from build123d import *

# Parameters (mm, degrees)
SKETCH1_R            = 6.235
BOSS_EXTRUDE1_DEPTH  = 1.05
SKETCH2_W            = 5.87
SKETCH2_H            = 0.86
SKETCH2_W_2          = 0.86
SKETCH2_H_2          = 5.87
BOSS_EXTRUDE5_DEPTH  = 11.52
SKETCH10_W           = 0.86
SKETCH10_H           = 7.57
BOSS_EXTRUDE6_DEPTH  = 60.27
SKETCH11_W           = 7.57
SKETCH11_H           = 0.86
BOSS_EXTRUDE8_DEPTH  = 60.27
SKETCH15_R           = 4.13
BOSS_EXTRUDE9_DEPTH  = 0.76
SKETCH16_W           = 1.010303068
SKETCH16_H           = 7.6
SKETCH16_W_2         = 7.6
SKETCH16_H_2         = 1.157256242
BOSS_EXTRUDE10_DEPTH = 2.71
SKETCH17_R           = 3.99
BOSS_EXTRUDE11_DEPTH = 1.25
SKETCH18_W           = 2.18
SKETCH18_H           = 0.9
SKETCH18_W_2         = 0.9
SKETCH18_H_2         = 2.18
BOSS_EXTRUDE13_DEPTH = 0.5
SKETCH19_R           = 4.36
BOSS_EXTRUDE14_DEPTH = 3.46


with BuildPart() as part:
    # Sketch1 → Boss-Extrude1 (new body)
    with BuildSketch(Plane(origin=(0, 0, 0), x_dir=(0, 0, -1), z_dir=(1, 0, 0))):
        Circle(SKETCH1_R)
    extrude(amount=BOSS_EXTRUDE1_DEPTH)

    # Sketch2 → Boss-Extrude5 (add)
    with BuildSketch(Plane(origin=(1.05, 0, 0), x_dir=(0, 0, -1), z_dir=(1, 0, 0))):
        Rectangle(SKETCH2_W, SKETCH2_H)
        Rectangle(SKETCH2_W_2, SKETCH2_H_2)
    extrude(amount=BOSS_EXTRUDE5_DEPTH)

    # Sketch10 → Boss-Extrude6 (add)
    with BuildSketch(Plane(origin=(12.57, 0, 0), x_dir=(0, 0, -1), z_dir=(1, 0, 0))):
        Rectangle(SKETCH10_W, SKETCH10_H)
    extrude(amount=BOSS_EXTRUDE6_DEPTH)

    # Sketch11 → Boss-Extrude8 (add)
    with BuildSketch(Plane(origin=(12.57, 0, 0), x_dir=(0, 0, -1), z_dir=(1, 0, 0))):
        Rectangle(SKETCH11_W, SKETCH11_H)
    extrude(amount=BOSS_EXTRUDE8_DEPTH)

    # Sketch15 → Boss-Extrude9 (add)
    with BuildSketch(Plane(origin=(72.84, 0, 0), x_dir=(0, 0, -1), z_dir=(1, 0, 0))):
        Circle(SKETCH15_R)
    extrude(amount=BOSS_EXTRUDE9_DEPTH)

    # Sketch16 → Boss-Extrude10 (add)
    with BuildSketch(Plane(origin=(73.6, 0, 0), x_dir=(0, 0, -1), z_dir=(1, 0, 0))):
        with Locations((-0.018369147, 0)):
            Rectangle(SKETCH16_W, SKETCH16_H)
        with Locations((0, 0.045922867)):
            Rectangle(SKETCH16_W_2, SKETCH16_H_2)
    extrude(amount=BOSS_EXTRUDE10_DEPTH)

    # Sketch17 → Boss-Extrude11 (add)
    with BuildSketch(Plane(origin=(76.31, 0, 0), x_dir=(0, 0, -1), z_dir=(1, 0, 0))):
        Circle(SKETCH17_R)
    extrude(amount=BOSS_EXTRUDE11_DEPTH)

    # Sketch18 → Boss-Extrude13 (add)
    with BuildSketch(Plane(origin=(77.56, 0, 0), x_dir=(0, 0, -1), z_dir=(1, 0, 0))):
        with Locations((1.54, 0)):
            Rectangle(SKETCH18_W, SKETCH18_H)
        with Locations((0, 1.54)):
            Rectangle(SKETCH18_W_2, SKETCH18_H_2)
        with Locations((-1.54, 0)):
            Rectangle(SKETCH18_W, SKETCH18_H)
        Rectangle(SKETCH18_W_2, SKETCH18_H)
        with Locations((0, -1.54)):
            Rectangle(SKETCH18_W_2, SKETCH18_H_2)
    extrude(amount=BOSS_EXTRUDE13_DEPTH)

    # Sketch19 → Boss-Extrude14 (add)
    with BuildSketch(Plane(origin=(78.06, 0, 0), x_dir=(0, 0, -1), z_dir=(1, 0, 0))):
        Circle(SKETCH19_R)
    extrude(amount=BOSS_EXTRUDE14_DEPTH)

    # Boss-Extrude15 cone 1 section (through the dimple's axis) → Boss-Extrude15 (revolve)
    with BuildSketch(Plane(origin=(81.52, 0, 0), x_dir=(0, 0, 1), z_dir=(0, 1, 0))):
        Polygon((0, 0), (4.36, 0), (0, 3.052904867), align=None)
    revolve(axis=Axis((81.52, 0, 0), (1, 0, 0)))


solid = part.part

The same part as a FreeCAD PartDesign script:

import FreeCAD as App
import Part
import Sketcher

V = App.Vector
Q = App.Units.Quantity

doc = App.newDocument("Part")
body = doc.addObject("PartDesign::Body", "Body")

# Sketch on YZ plane
sketch1 = body.newObject("Sketcher::SketchObject", "Sketch")
sketch1.AttachmentSupport = (doc.getObject("YZ_Plane"), [""])
sketch1.MapMode = "FlatFace"
sketch1.addGeometry(Part.Circle(V(0, 0, 0), V(0, 0, 1), 6.235), False)
sketch1.addConstraint([
    Sketcher.Constraint("Coincident", 0, 3, -1, 1),
    Sketcher.Constraint("Diameter", 0, 12.47),
])
pad1 = body.newObject("PartDesign::Pad", "Pad")
pad1.Profile = sketch1
pad1.Length = 1.05

# Sketch on YZ plane
sketch2 = body.newObject("Sketcher::SketchObject", "Sketch001")
sketch2.AttachmentSupport = (doc.getObject("YZ_Plane"), [""])
sketch2.MapMode = "FlatFace"
sketch2.AttachmentOffset = App.Placement(V(0, 0, 1.05), App.Rotation())
sketch2.addGeometry([
    Part.LineSegment(V(0.43, 2.935, 0), V(-0.43, 2.935, 0)),  # 0
    Part.LineSegment(V(-0.43, 2.935, 0), V(-0.43, 0.43, 0)),  # 1
    Part.LineSegment(V(-0.43, 0.43, 0), V(-2.935, 0.43, 0)),  # 2
    Part.LineSegment(V(-2.935, 0.43, 0), V(-2.935, -0.43, 0)),  # 3
    Part.LineSegment(V(-2.935, -0.43, 0), V(-0.43, -0.43, 0)),  # 4
    Part.LineSegment(V(-0.43, -0.43, 0), V(-0.43, -2.935, 0)),  # 5
    Part.LineSegment(V(-0.43, -2.935, 0), V(0.43, -2.935, 0)),  # 6
    Part.LineSegment(V(0.43, -2.935, 0), V(0.43, -0.43, 0)),  # 7
    Part.LineSegment(V(0.43, -0.43, 0), V(2.935, -0.43, 0)),  # 8
    Part.LineSegment(V(2.935, -0.43, 0), V(2.935, 0.43, 0)),  # 9
    Part.LineSegment(V(2.935, 0.43, 0), V(0.43, 0.43, 0)),  # 10
    Part.LineSegment(V(0.43, 0.43, 0), V(0.43, 2.935, 0)),  # 11
], False)
sketch2.addConstraint([
    Sketcher.Constraint("Coincident", 0, 2, 1, 1),
    Sketcher.Constraint("Coincident", 1, 2, 2, 1),
    Sketcher.Constraint("Coincident", 2, 2, 3, 1),
    Sketcher.Constraint("Coincident", 3, 2, 4, 1),
    Sketcher.Constraint("Coincident", 4, 2, 5, 1),
    Sketcher.Constraint("Coincident", 5, 2, 6, 1),
    Sketcher.Constraint("Coincident", 6, 2, 7, 1),
    Sketcher.Constraint("Coincident", 7, 2, 8, 1),
    Sketcher.Constraint("Coincident", 8, 2, 9, 1),
    Sketcher.Constraint("Coincident", 9, 2, 10, 1),
    Sketcher.Constraint("Coincident", 10, 2, 11, 1),
    Sketcher.Constraint("Coincident", 11, 2, 0, 1),
    Sketcher.Constraint("Horizontal", 0),
    Sketcher.Constraint("Vertical", 1),
    Sketcher.Constraint("Horizontal", 2),
    Sketcher.Constraint("Vertical", 3),
    Sketcher.Constraint("Horizontal", 4),
    Sketcher.Constraint("Vertical", 5),
    Sketcher.Constraint("Horizontal", 6),
    Sketcher.Constraint("Vertical", 7),
    Sketcher.Constraint("Horizontal", 8),
    Sketcher.Constraint("Vertical", 9),
    Sketcher.Constraint("Horizontal", 10),
    Sketcher.Constraint("Vertical", 11),
    Sketcher.Constraint("Symmetric", 0, 2, 6, 2, -1, 1),
    Sketcher.Constraint("Symmetric", 2, 2, 8, 2, -1, 1),
    Sketcher.Constraint("Symmetric", 4, 2, 10, 2, -1, 1),
    Sketcher.Constraint("Symmetric", 4, 2, 7, 2, -2),
    Sketcher.Constraint("Equal", 10, 1),
    Sketcher.Constraint("Equal", 6, 3),
    Sketcher.Constraint("DistanceX", 0, 2, 0, 1, 0.86),
    Sketcher.Constraint("DistanceX", 2, 2, 2, 1, 2.505),
])
pad2 = body.newObject("PartDesign::Pad", "Pad001")
pad2.Profile = sketch2
pad2.Length = 11.52

# Sketch on YZ plane
sketch3 = body.newObject("Sketcher::SketchObject", "Sketch002")
sketch3.AttachmentSupport = (doc.getObject("YZ_Plane"), [""])
sketch3.MapMode = "FlatFace"
sketch3.AttachmentOffset = App.Placement(V(0, 0, 12.57), App.Rotation())
sketch3.addGeometry([
    Part.LineSegment(V(3.785, 0.43, 0), V(-3.785, 0.43, 0)),
    Part.LineSegment(V(-3.785, 0.43, 0), V(-3.785, -0.43, 0)),
    Part.LineSegment(V(-3.785, -0.43, 0), V(3.785, -0.43, 0)),
    Part.LineSegment(V(3.785, -0.43, 0), V(3.785, 0.43, 0)),
], False)
sketch3.addConstraint([
    Sketcher.Constraint("Coincident", 0, 2, 1, 1),
    Sketcher.Constraint("Coincident", 1, 2, 2, 1),
    Sketcher.Constraint("Coincident", 2, 2, 3, 1),
    Sketcher.Constraint("Coincident", 3, 2, 0, 1),
    Sketcher.Constraint("Horizontal", 0),
    Sketcher.Constraint("Vertical", 1),
    Sketcher.Constraint("Horizontal", 2),
    Sketcher.Constraint("Vertical", 3),
    Sketcher.Constraint("Symmetric", 0, 2, 2, 2, -1, 1),
    Sketcher.Constraint("DistanceX", 0, 2, 0, 1, 7.57),
    Sketcher.Constraint("DistanceY", 1, 2, 1, 1, 0.86),
])
pad3 = body.newObject("PartDesign::Pad", "Pad002")
pad3.Profile = sketch3
pad3.Length = 60.27

# Sketch on YZ plane
sketch4 = body.newObject("Sketcher::SketchObject", "Sketch003")
sketch4.AttachmentSupport = (doc.getObject("YZ_Plane"), [""])
sketch4.MapMode = "FlatFace"
sketch4.AttachmentOffset = App.Placement(V(0, 0, 12.57), App.Rotation())
sketch4.addGeometry([
    Part.LineSegment(V(0.43, 3.785, 0), V(-0.43, 3.785, 0)),
    Part.LineSegment(V(-0.43, 3.785, 0), V(-0.43, -3.785, 0)),
    Part.LineSegment(V(-0.43, -3.785, 0), V(0.43, -3.785, 0)),
    Part.LineSegment(V(0.43, -3.785, 0), V(0.43, 3.785, 0)),
], False)
sketch4.addConstraint([
    Sketcher.Constraint("Coincident", 0, 2, 1, 1),
    Sketcher.Constraint("Coincident", 1, 2, 2, 1),
    Sketcher.Constraint("Coincident", 2, 2, 3, 1),
    Sketcher.Constraint("Coincident", 3, 2, 0, 1),
    Sketcher.Constraint("Horizontal", 0),
    Sketcher.Constraint("Vertical", 1),
    Sketcher.Constraint("Horizontal", 2),
    Sketcher.Constraint("Vertical", 3),
    Sketcher.Constraint("Symmetric", 0, 2, 2, 2, -1, 1),
    Sketcher.Constraint("DistanceX", 0, 2, 0, 1, 0.86),
    Sketcher.Constraint("DistanceY", 1, 2, 1, 1, 7.57),
])
pad4 = body.newObject("PartDesign::Pad", "Pad003")
pad4.Profile = sketch4
pad4.Length = 60.27

# Sketch on YZ plane
sketch5 = body.newObject("Sketcher::SketchObject", "Sketch004")
sketch5.AttachmentSupport = (doc.getObject("YZ_Plane"), [""])
sketch5.MapMode = "FlatFace"
sketch5.AttachmentOffset = App.Placement(V(0, 0, 72.84), App.Rotation())
sketch5.addGeometry(Part.Circle(V(0, 0, 0), V(0, 0, 1), 4.13), False)
sketch5.addConstraint([
    Sketcher.Constraint("Coincident", 0, 3, -1, 1),
    Sketcher.Constraint("Diameter", 0, 8.26),
])
pad5 = body.newObject("PartDesign::Pad", "Pad004")
pad5.Profile = sketch5
pad5.Length = 0.76

# Sketch on YZ plane
sketch6 = body.newObject("Sketcher::SketchObject", "Sketch005")
sketch6.AttachmentSupport = (doc.getObject("YZ_Plane"), [""])
sketch6.MapMode = "FlatFace"
sketch6.AttachmentOffset = App.Placement(V(0, 0, 73.6), App.Rotation())
sketch6.addGeometry([
    Part.LineSegment(V(-0.532705, 0.523521, 0), V(-3.8, 0.523521, 0)),  # 0
    Part.LineSegment(V(-3.8, 0.523521, 0), V(-3.8, -0.486782, 0)),  # 1
    Part.LineSegment(V(-3.8, -0.486782, 0), V(-0.532705, -0.486782, 0)),  # 2
    Part.LineSegment(V(-0.532705, -0.486782, 0), V(-0.532705, -3.8, 0)),  # 3
    Part.LineSegment(V(-0.532705, -3.8, 0), V(0.624551, -3.8, 0)),  # 4
    Part.LineSegment(V(0.624551, -3.8, 0), V(0.624551, -0.486782, 0)),  # 5
    Part.LineSegment(V(0.624551, -0.486782, 0), V(3.8, -0.486782, 0)),  # 6
    Part.LineSegment(V(3.8, -0.486782, 0), V(3.8, 0.523521, 0)),  # 7
    Part.LineSegment(V(3.8, 0.523521, 0), V(0.624551, 0.523521, 0)),  # 8
    Part.LineSegment(V(0.624551, 0.523521, 0), V(0.624551, 3.8, 0)),  # 9
    Part.LineSegment(V(0.624551, 3.8, 0), V(-0.532705, 3.8, 0)),  # 10
    Part.LineSegment(V(-0.532705, 3.8, 0), V(-0.532705, 0.523521, 0)),  # 11
], False)
sketch6.addConstraint([
    Sketcher.Constraint("Coincident", 0, 2, 1, 1),
    Sketcher.Constraint("Coincident", 1, 2, 2, 1),
    Sketcher.Constraint("Coincident", 2, 2, 3, 1),
    Sketcher.Constraint("Coincident", 3, 2, 4, 1),
    Sketcher.Constraint("Coincident", 4, 2, 5, 1),
    Sketcher.Constraint("Coincident", 5, 2, 6, 1),
    Sketcher.Constraint("Coincident", 6, 2, 7, 1),
    Sketcher.Constraint("Coincident", 7, 2, 8, 1),
    Sketcher.Constraint("Coincident", 8, 2, 9, 1),
    Sketcher.Constraint("Coincident", 9, 2, 10, 1),
    Sketcher.Constraint("Coincident", 10, 2, 11, 1),
    Sketcher.Constraint("Coincident", 11, 2, 0, 1),
    Sketcher.Constraint("Horizontal", 0),
    Sketcher.Constraint("Vertical", 1),
    Sketcher.Constraint("Horizontal", 2),
    Sketcher.Constraint("Vertical", 3),
    Sketcher.Constraint("Horizontal", 4),
    Sketcher.Constraint("Vertical", 5),
    Sketcher.Constraint("Horizontal", 6),
    Sketcher.Constraint("Vertical", 7),
    Sketcher.Constraint("Horizontal", 8),
    Sketcher.Constraint("Vertical", 9),
    Sketcher.Constraint("Horizontal", 10),
    Sketcher.Constraint("Vertical", 11),
    Sketcher.Constraint("Symmetric", 1, 2, 6, 2, -2),
    Sketcher.Constraint("Symmetric", 4, 2, 9, 2, -1),
    Sketcher.Constraint("Horizontal", 0, 2, 7, 2),
    Sketcher.Constraint("Vertical", 3, 2, 10, 2),
    Sketcher.Constraint("DistanceX", 0, 2, -1, 1, 3.8),
    Sketcher.Constraint("DistanceY", 3, 2, -1, 1, 3.8),
    Sketcher.Constraint("DistanceX", 6, 1, 6, 2, 3.175449),
    Sketcher.Constraint("DistanceY", 9, 1, 9, 2, 3.276479),
    Sketcher.Constraint("DistanceX", 0, 2, 0, 1, 3.267295),
    Sketcher.Constraint("DistanceY", 1, 2, 1, 1, 1.010303),
])
pad6 = body.newObject("PartDesign::Pad", "Pad005")
pad6.Profile = sketch6
pad6.Length = 2.71

# Sketch on YZ plane
sketch7 = body.newObject("Sketcher::SketchObject", "Sketch006")
sketch7.AttachmentSupport = (doc.getObject("YZ_Plane"), [""])
sketch7.MapMode = "FlatFace"
sketch7.AttachmentOffset = App.Placement(V(0, 0, 76.31), App.Rotation())
sketch7.addGeometry(Part.Circle(V(0, 0, 0), V(0, 0, 1), 3.99), False)
sketch7.addConstraint([
    Sketcher.Constraint("Coincident", 0, 3, -1, 1),
    Sketcher.Constraint("Diameter", 0, 7.98),
])
pad7 = body.newObject("PartDesign::Pad", "Pad006")
pad7.Profile = sketch7
pad7.Length = 1.25

# Sketch on YZ plane
sketch8 = body.newObject("Sketcher::SketchObject", "Sketch007")
sketch8.AttachmentSupport = (doc.getObject("YZ_Plane"), [""])
sketch8.MapMode = "FlatFace"
sketch8.AttachmentOffset = App.Placement(V(0, 0, 77.56), App.Rotation())
sketch8.addGeometry([
    Part.LineSegment(V(-0.45, -2.63, 0), V(0.45, -2.63, 0)),  # 0
    Part.LineSegment(V(0.45, -2.63, 0), V(0.45, -0.45, 0)),  # 1
    Part.LineSegment(V(0.45, -0.45, 0), V(2.63, -0.45, 0)),  # 2
    Part.LineSegment(V(2.63, -0.45, 0), V(2.63, 0.45, 0)),  # 3
    Part.LineSegment(V(2.63, 0.45, 0), V(0.45, 0.45, 0)),  # 4
    Part.LineSegment(V(0.45, 0.45, 0), V(0.45, 2.63, 0)),  # 5
    Part.LineSegment(V(0.45, 2.63, 0), V(-0.45, 2.63, 0)),  # 6
    Part.LineSegment(V(-0.45, 2.63, 0), V(-0.45, 0.45, 0)),  # 7
    Part.LineSegment(V(-0.45, 0.45, 0), V(-2.63, 0.45, 0)),  # 8
    Part.LineSegment(V(-2.63, 0.45, 0), V(-2.63, -0.45, 0)),  # 9
    Part.LineSegment(V(-2.63, -0.45, 0), V(-0.45, -0.45, 0)),  # 10
    Part.LineSegment(V(-0.45, -0.45, 0), V(-0.45, -2.63, 0)),  # 11
], False)
sketch8.addConstraint([
    Sketcher.Constraint("Coincident", 0, 2, 1, 1),
    Sketcher.Constraint("Coincident", 1, 2, 2, 1),
    Sketcher.Constraint("Coincident", 2, 2, 3, 1),
    Sketcher.Constraint("Coincident", 3, 2, 4, 1),
    Sketcher.Constraint("Coincident", 4, 2, 5, 1),
    Sketcher.Constraint("Coincident", 5, 2, 6, 1),
    Sketcher.Constraint("Coincident", 6, 2, 7, 1),
    Sketcher.Constraint("Coincident", 7, 2, 8, 1),
    Sketcher.Constraint("Coincident", 8, 2, 9, 1),
    Sketcher.Constraint("Coincident", 9, 2, 10, 1),
    Sketcher.Constraint("Coincident", 10, 2, 11, 1),
    Sketcher.Constraint("Coincident", 11, 2, 0, 1),
    Sketcher.Constraint("Horizontal", 0),
    Sketcher.Constraint("Vertical", 1),
    Sketcher.Constraint("Horizontal", 2),
    Sketcher.Constraint("Vertical", 3),
    Sketcher.Constraint("Horizontal", 4),
    Sketcher.Constraint("Vertical", 5),
    Sketcher.Constraint("Horizontal", 6),
    Sketcher.Constraint("Vertical", 7),
    Sketcher.Constraint("Horizontal", 8),
    Sketcher.Constraint("Vertical", 9),
    Sketcher.Constraint("Horizontal", 10),
    Sketcher.Constraint("Vertical", 11),
    Sketcher.Constraint("Symmetric", 0, 2, 6, 2, -1, 1),
    Sketcher.Constraint("Symmetric", 2, 2, 8, 2, -1, 1),
    Sketcher.Constraint("Symmetric", 4, 2, 10, 2, -1, 1),
    Sketcher.Constraint("Symmetric", 4, 2, 7, 2, -2),
    Sketcher.Constraint("Equal", 10, 1),
    Sketcher.Constraint("Equal", 6, 3),
    Sketcher.Constraint("DistanceX", 0, 1, 0, 2, 0.9),
    Sketcher.Constraint("DistanceX", 2, 1, 2, 2, 2.18),
])
pad8 = body.newObject("PartDesign::Pad", "Pad007")
pad8.Profile = sketch8
pad8.Length = 0.5

# Sketch on YZ plane
sketch9 = body.newObject("Sketcher::SketchObject", "Sketch008")
sketch9.AttachmentSupport = (doc.getObject("YZ_Plane"), [""])
sketch9.MapMode = "FlatFace"
sketch9.AttachmentOffset = App.Placement(V(0, 0, 78.06), App.Rotation())
sketch9.addGeometry(Part.Circle(V(0, 0, 0), V(0, 0, 1), 4.36), False)
sketch9.addConstraint([
    Sketcher.Constraint("Coincident", 0, 3, -1, 1),
    Sketcher.Constraint("Diameter", 0, 8.72),
])
pad9 = body.newObject("PartDesign::Pad", "Pad008")
pad9.Profile = sketch9
pad9.Length = 3.46

# Sketch on XZ plane
sketch10 = body.newObject("Sketcher::SketchObject", "Sketch009")
sketch10.AttachmentSupport = (doc.getObject("XZ_Plane"), [""])
sketch10.MapMode = "FlatFace"
sketch10.addGeometry([
    Part.LineSegment(V(81.52, 0, 0), V(81.52, 4.36, 0)),
    Part.LineSegment(V(81.52, 4.36, 0), V(84.572905, 0, 0)),
    Part.LineSegment(V(84.572905, 0, 0), V(81.52, 0, 0)),
], False)
sketch10.addConstraint([
    Sketcher.Constraint("Coincident", 0, 2, 1, 1),
    Sketcher.Constraint("Coincident", 1, 2, 2, 1),
    Sketcher.Constraint("Coincident", 2, 2, 0, 1),
    Sketcher.Constraint("Vertical", 0),
    Sketcher.Constraint("Horizontal", 2),
    Sketcher.Constraint("PointOnObject", 1, 2, -1),
    Sketcher.Constraint("Angle", 1, Q("-55 deg")),
    Sketcher.Constraint("DistanceY", 0, 1, 0, 2, 4.36),
    Sketcher.Constraint("DistanceX", -1, 1, 0, 2, 81.52),
])
revolution = body.newObject("PartDesign::Revolution", "Revolution")
revolution.Profile = sketch10
revolution.ReferenceAxis = (sketch10, ["H_Axis"])
revolution.Angle = 360

doc.recompute()
